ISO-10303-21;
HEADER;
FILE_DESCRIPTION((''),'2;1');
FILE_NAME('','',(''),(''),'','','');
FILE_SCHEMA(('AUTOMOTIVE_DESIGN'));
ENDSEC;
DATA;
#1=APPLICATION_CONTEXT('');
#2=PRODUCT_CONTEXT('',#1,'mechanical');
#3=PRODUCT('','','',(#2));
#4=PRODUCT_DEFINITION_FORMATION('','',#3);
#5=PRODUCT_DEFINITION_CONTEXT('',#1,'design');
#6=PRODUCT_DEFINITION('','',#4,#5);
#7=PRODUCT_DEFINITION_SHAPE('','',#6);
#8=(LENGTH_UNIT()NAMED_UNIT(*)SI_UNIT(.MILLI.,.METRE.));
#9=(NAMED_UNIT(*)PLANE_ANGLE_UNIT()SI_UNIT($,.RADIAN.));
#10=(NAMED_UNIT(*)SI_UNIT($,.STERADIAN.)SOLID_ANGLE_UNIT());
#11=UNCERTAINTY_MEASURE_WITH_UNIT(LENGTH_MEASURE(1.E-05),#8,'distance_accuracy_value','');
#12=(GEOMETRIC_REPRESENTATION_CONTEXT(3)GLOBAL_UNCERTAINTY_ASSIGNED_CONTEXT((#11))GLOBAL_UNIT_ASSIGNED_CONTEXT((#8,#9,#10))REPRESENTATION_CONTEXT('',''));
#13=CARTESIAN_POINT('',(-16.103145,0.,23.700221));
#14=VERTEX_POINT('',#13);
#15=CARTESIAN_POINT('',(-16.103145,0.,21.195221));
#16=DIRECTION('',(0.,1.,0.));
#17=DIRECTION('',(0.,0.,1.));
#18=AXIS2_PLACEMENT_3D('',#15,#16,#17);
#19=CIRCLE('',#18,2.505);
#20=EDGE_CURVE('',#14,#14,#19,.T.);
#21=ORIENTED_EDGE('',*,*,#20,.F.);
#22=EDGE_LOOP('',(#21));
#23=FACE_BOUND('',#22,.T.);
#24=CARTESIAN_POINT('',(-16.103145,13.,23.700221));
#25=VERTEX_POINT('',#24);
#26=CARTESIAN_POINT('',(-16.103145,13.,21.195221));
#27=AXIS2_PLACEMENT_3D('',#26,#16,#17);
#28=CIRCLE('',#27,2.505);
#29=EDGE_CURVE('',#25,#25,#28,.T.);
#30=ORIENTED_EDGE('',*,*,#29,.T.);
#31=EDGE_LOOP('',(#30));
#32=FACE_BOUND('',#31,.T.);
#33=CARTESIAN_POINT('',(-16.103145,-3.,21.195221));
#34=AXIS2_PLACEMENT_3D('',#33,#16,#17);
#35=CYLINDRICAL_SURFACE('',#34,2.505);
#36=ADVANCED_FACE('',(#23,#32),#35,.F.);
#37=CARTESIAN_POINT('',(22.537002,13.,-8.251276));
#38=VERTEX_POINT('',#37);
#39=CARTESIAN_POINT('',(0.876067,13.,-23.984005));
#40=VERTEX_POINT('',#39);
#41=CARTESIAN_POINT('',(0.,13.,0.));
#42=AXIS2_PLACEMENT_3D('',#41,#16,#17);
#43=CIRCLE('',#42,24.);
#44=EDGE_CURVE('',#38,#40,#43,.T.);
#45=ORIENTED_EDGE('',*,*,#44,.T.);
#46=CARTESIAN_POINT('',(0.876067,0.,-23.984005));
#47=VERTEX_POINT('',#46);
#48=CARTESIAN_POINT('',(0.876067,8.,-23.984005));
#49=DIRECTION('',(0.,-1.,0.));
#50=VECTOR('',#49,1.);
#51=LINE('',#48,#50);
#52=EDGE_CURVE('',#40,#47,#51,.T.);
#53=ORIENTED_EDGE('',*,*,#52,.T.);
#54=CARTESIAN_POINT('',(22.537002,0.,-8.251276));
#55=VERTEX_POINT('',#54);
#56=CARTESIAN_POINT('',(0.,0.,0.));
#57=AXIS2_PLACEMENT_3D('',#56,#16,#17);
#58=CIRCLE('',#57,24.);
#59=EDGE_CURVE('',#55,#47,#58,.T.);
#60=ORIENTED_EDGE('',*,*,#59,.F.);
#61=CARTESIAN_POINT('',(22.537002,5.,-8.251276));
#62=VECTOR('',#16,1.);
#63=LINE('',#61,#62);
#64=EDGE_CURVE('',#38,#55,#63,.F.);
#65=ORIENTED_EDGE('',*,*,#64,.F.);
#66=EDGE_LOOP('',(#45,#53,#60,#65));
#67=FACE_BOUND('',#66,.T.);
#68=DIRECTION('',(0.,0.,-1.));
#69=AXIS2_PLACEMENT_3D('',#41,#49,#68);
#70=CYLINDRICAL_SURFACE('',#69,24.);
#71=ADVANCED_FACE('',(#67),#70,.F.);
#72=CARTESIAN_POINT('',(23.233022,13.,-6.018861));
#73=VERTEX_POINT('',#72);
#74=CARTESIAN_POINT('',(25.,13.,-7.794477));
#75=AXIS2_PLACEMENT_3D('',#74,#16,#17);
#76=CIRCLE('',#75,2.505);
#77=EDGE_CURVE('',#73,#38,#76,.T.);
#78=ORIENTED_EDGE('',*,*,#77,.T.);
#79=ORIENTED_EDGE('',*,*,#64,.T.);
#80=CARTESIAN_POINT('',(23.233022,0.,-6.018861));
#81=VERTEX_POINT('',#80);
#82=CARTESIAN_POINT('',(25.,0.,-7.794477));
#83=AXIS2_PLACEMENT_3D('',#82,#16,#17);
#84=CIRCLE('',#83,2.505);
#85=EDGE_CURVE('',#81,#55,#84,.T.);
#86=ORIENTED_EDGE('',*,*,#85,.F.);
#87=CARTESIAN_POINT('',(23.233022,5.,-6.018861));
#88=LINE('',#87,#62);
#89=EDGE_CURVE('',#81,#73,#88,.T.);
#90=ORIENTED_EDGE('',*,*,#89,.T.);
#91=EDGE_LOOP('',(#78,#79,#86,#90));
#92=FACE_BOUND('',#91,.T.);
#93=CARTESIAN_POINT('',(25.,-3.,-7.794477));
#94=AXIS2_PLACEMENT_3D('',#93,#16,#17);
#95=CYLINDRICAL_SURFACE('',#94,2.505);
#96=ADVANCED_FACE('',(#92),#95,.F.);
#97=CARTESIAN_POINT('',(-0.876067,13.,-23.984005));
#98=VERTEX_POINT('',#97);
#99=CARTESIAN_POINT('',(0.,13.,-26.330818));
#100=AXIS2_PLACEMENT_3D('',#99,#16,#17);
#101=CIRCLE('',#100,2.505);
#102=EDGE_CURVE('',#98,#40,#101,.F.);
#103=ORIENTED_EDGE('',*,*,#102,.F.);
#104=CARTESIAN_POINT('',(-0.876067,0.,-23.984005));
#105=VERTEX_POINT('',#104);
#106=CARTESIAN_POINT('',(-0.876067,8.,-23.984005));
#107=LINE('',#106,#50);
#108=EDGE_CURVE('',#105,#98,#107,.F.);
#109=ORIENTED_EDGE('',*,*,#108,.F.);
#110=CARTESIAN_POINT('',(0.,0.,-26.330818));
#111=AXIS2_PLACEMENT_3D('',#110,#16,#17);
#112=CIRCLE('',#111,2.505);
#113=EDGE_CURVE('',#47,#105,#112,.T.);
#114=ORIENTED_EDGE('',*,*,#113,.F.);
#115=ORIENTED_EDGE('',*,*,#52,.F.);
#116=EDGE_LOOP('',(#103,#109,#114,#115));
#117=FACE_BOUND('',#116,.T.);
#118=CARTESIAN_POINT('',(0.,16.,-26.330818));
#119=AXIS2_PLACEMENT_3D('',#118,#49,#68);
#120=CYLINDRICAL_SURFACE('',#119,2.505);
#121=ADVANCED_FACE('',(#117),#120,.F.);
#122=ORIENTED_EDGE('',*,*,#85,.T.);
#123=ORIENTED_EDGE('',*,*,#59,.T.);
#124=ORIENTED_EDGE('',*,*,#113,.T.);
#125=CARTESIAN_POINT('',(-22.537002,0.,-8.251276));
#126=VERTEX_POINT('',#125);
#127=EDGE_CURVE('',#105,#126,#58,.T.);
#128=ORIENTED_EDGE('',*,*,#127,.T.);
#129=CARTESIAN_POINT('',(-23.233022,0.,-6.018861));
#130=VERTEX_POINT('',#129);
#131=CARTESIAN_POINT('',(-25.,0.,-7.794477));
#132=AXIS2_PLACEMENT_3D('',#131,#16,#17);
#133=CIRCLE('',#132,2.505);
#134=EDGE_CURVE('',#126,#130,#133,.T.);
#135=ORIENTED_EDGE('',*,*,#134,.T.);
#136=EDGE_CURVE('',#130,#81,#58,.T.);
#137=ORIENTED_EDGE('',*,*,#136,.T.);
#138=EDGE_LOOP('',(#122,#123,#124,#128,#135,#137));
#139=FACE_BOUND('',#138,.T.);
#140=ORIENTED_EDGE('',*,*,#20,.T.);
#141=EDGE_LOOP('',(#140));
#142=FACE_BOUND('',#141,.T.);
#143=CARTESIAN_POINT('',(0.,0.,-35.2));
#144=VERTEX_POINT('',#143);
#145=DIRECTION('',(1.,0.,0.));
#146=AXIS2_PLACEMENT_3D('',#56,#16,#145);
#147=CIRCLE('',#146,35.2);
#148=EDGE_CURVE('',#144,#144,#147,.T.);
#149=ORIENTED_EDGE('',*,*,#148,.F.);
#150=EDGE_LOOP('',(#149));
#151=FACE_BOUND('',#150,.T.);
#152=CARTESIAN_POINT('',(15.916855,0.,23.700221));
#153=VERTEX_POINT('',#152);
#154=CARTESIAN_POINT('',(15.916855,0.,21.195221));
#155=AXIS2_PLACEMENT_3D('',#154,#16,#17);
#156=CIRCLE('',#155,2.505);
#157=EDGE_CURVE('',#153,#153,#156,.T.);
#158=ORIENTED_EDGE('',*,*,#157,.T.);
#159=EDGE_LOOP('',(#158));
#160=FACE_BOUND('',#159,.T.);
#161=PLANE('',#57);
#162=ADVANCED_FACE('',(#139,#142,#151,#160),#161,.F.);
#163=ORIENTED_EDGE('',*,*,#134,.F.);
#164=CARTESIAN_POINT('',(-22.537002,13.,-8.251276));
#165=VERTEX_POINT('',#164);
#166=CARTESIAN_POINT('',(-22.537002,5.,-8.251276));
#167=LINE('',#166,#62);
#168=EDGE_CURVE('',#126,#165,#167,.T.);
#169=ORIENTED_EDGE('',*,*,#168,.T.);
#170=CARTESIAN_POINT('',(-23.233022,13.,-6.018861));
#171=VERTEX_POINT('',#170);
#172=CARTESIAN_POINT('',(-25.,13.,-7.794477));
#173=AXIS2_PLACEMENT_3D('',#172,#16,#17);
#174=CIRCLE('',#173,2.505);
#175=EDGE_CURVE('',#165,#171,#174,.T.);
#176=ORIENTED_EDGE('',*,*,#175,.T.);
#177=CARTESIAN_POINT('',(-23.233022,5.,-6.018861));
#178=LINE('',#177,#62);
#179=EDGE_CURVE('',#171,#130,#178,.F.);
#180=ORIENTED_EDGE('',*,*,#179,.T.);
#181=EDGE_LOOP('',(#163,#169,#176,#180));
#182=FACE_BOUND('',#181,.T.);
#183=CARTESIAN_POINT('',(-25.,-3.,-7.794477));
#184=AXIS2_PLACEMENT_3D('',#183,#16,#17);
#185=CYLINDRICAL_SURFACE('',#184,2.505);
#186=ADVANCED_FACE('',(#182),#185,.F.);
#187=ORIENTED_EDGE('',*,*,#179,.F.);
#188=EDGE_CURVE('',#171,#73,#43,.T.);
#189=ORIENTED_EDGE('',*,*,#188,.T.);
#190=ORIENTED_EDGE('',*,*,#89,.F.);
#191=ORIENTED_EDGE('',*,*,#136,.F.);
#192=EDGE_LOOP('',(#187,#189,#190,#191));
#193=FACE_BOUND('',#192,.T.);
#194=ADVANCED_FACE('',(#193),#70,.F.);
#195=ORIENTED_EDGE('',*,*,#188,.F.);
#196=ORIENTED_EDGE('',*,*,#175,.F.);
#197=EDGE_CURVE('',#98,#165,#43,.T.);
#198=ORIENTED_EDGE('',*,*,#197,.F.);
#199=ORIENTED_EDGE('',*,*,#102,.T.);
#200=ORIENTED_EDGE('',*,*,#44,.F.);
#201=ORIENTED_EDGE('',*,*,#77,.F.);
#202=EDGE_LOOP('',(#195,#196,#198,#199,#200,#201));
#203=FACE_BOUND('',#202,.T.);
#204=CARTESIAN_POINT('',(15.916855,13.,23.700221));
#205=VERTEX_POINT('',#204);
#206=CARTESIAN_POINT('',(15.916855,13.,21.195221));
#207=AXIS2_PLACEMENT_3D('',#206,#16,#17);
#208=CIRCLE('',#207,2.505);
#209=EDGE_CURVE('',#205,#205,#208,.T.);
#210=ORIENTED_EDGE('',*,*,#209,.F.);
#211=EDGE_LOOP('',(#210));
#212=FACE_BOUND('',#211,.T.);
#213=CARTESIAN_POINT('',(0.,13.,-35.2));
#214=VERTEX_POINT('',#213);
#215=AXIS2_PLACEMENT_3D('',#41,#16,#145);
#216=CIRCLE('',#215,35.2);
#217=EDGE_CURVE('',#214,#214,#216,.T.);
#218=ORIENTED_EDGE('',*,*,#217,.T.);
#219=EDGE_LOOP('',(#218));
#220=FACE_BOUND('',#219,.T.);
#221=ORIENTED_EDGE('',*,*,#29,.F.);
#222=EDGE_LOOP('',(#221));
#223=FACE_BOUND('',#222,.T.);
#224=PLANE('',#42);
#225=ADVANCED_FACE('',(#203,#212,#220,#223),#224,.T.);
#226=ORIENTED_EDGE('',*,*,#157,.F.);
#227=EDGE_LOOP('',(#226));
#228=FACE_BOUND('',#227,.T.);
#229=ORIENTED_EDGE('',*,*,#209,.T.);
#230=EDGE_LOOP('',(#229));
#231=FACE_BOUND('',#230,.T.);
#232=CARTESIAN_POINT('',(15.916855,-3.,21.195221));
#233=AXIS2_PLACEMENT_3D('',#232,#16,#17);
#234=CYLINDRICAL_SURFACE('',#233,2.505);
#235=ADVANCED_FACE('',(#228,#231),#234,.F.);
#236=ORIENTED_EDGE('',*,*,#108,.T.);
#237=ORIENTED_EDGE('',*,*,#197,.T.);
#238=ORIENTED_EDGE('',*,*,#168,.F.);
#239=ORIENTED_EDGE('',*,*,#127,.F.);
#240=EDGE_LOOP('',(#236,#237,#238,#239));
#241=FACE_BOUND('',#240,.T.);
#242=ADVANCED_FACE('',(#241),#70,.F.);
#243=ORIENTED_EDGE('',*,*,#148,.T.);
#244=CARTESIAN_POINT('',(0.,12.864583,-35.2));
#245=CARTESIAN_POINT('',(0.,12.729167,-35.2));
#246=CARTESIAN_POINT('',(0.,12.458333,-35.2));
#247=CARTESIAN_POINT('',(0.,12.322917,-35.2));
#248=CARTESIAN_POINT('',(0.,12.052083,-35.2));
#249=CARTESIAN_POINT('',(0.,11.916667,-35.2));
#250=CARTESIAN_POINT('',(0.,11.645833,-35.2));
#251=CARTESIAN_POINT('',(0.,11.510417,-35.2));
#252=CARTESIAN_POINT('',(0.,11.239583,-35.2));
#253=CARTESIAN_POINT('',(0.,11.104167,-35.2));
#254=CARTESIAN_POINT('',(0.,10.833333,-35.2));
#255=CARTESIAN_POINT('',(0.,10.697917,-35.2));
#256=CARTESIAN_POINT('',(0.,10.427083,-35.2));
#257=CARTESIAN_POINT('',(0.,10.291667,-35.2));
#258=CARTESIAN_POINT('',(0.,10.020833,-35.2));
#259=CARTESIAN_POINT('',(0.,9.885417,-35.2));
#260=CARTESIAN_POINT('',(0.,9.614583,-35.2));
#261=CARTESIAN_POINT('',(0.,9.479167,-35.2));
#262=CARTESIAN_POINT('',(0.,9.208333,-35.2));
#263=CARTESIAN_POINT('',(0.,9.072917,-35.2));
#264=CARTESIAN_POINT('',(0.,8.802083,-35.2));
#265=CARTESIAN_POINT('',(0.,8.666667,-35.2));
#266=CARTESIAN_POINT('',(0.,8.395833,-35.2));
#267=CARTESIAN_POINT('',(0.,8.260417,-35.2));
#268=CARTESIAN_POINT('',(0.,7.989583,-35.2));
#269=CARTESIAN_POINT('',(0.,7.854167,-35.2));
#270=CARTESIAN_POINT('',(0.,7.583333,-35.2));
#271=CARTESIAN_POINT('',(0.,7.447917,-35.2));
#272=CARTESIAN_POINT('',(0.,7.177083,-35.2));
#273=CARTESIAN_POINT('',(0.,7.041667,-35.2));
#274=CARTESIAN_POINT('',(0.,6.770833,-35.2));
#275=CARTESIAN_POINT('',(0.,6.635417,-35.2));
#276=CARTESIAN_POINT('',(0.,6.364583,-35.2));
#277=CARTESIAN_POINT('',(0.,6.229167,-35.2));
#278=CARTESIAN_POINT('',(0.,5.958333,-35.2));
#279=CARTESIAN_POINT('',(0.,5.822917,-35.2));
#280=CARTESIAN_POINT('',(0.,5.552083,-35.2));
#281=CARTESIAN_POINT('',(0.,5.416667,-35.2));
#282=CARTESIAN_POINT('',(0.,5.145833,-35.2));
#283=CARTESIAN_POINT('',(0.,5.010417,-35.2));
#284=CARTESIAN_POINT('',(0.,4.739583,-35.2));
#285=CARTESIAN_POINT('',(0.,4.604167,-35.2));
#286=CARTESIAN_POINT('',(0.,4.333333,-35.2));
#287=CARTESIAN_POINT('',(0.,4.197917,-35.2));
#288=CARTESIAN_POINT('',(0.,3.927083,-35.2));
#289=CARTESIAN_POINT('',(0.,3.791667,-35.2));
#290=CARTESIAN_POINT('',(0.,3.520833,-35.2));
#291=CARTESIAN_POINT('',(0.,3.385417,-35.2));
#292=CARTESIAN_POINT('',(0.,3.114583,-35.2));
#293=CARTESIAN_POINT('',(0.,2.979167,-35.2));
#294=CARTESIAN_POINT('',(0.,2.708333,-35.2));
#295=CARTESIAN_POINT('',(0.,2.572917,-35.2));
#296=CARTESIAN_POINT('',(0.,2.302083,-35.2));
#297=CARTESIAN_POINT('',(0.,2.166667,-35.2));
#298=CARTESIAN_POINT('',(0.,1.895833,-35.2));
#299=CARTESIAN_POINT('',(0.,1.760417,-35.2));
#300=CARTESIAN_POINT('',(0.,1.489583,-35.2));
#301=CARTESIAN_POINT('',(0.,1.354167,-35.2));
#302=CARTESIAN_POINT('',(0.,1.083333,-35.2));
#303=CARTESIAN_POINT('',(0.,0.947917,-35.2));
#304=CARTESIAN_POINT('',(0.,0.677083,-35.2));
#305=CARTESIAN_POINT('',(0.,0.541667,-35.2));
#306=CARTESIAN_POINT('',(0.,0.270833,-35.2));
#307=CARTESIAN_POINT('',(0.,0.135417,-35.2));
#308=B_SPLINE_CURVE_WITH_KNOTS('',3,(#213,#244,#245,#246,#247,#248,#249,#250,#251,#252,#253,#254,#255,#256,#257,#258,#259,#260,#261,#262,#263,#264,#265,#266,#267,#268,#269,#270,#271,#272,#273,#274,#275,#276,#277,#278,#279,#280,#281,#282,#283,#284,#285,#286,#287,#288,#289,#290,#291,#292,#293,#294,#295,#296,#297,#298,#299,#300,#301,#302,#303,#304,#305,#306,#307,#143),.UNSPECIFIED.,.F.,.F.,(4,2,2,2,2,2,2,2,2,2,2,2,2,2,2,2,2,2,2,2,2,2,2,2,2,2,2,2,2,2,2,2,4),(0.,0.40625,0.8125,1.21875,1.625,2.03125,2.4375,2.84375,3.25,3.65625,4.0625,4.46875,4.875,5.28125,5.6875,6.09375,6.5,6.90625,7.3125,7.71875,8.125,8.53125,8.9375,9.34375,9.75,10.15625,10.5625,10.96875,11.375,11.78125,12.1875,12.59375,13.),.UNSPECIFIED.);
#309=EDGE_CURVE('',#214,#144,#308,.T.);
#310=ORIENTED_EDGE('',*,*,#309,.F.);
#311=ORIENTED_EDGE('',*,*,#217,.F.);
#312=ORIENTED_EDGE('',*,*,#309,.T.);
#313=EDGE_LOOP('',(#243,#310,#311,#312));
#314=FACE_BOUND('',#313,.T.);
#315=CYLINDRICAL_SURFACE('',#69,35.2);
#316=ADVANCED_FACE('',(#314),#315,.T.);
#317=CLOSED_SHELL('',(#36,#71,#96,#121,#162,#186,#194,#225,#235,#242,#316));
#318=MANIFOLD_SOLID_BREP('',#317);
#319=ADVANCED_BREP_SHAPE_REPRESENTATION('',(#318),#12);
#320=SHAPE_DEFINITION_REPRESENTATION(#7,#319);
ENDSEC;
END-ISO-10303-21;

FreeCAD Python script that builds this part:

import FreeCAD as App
import Part
import Sketcher
Q = App.Units.Quantity

doc = App.newDocument("Part")
params = doc.addObject("Spreadsheet::Sheet", "Params")
for row, (alias, value) in enumerate([
    ("sketch1_diameter", "48 mm"),
    ("sketch1_diameter2", "70.4 mm"),
    ("pad1_length", "13 mm"),
    ("sketch2_diameter", "5.01 mm"),
    ("pocket1_length", "16 mm"),
    ("sketch3_diameter", "5.01 mm"),
    ("pocket2_length", "16 mm"),
    ("sketch4_diameter", "5.01 mm"),
    ("pocket3_length", "16 mm"),
], start=1):
    params.set(f"A{row}", alias)
    params.set(f"B{row}", "=" + value)
    params.setAlias(f"B{row}", alias)

body = doc.addObject("PartDesign::Body", "Body")

# Sketch on XZ plane
sketch1 = doc.addObject("Sketcher::SketchObject", "Sketch")
body.addObject(sketch1)
sketch1.AttachmentSupport = (doc.XZ_Plane, [""])
sketch1.MapMode = "FlatFace"
sketch1.addGeometry(Part.Circle(App.Vector(0, 0, 0), App.Vector(0, 0, 1), 35), False)
sketch1.addGeometry(Part.Circle(App.Vector(0, 0, 0), App.Vector(0, 0, 1), 24), False)
sketch1.addConstraint(Sketcher.Constraint("Coincident", 0, 3, -1, 1))
sketch1.addConstraint(Sketcher.Constraint("Coincident", 1, 3, -1, 1))
sketch1.addConstraint(Sketcher.Constraint("Diameter", 1, Q("48 mm")))
sketch1.addConstraint(Sketcher.Constraint("Diameter", 0, Q("70.4 mm")))
sketch1.setExpression("Constraints[2]", "Params.sketch1_diameter")
sketch1.setExpression("Constraints[3]", "Params.sketch1_diameter2")
pad1 = doc.addObject("PartDesign::Pad", "Pad")
body.addObject(pad1)
pad1.Profile = sketch1
pad1.setExpression("Length", "Params.pad1_length")
pad1.Reversed = True

# Sketch on XZ plane
sketch2 = doc.addObject("Sketcher::SketchObject", "Sketch001")
body.addObject(sketch2)
sketch2.AttachmentSupport = (doc.XZ_Plane, [""])
sketch2.MapMode = "FlatFace"
sketch2.addGeometry(Part.Circle(App.Vector(0, -26.3, 0), App.Vector(0, 0, 1), 2.5), False)
sketch2.addConstraint(Sketcher.Constraint("PointOnObject", 0, 3, -2))
sketch2.addConstraint(Sketcher.Constraint("Diameter", 0, Q("5.01 mm")))
sketch2.addConstraint(Sketcher.Constraint("DistanceY", 0, 3, -1, 1, Q("26.330818 mm")))
sketch2.setExpression("Constraints[1]", "Params.sketch2_diameter")
pocket1 = doc.addObject("PartDesign::Pocket", "Pocket")
body.addObject(pocket1)
pocket1.Profile = sketch2
pocket1.setExpression("Length", "Params.pocket1_length")

# Sketch on XZ plane
sketch3 = doc.addObject("Sketcher::SketchObject", "Sketch002")
body.addObject(sketch3)
sketch3.AttachmentSupport = (doc.XZ_Plane, [""])
sketch3.MapMode = "FlatFace"
sketch3.AttachmentOffset = App.Placement(App.Vector(0, 0, -13), App.Rotation())
sketch3.addGeometry(Part.Circle(App.Vector(-16.1, 21.2, 0), App.Vector(0, 0, 1), 2.5), False)
sketch3.addGeometry(Part.Circle(App.Vector(15.9, 21.2, 0), App.Vector(0, 0, 1), 2.5), False)
sketch3.addConstraint(Sketcher.Constraint("Equal", 0, 1))
sketch3.addConstraint(Sketcher.Constraint("Horizontal", 0, 3, 1, 3))
sketch3.addConstraint(Sketcher.Constraint("Diameter", 0, Q("5.01 mm")))
sketch3.addConstraint(Sketcher.Constraint("DistanceX", 0, 3, 1, 3, Q("32.02 mm")))
sketch3.addConstraint(Sketcher.Constraint("DistanceY", -1, 1, 0, 3, Q("21.195221 mm")))
sketch3.addConstraint(Sketcher.Constraint("DistanceX", 0, 3, -1, 1, Q("16.103145 mm")))
sketch3.setExpression("Constraints[2]", "Params.sketch3_diameter")
pocket2 = doc.addObject("PartDesign::Pocket", "Pocket001")
body.addObject(pocket2)
pocket2.Profile = sketch3
pocket2.setExpression("Length", "Params.pocket2_length")
pocket2.Reversed = True

# Sketch on XZ plane
sketch4 = doc.addObject("Sketcher::SketchObject", "Sketch003")
body.addObject(sketch4)
sketch4.AttachmentSupport = (doc.XZ_Plane, [""])
sketch4.MapMode = "FlatFace"
sketch4.AttachmentOffset = App.Placement(App.Vector(0, 0, -13), App.Rotation())
sketch4.addGeometry(Part.Circle(App.Vector(-25, -7.8, 0), App.Vector(0, 0, 1), 2.5), False)
sketch4.addGeometry(Part.Circle(App.Vector(25, -7.8, 0), App.Vector(0, 0, 1), 2.5), False)
sketch4.addConstraint(Sketcher.Constraint("Equal", 0, 1))
sketch4.addConstraint(Sketcher.Constraint("Symmetric", 0, 3, 1, 3, -2))
sketch4.addConstraint(Sketcher.Constraint("Diameter", 0, Q("5.01 mm")))
sketch4.addConstraint(Sketcher.Constraint("DistanceX", 0, 3, -1, 1, Q("25 mm")))
sketch4.addConstraint(Sketcher.Constraint("DistanceY", 0, 3, -1, 1, Q("7.794477 mm")))
sketch4.setExpression("Constraints[2]", "Params.sketch4_diameter")
pocket3 = doc.addObject("PartDesign::Pocket", "Pocket002")
body.addObject(pocket3)
pocket3.Profile = sketch4
pocket3.setExpression("Length", "Params.pocket3_length")
pocket3.Reversed = True

doc.recompute()
